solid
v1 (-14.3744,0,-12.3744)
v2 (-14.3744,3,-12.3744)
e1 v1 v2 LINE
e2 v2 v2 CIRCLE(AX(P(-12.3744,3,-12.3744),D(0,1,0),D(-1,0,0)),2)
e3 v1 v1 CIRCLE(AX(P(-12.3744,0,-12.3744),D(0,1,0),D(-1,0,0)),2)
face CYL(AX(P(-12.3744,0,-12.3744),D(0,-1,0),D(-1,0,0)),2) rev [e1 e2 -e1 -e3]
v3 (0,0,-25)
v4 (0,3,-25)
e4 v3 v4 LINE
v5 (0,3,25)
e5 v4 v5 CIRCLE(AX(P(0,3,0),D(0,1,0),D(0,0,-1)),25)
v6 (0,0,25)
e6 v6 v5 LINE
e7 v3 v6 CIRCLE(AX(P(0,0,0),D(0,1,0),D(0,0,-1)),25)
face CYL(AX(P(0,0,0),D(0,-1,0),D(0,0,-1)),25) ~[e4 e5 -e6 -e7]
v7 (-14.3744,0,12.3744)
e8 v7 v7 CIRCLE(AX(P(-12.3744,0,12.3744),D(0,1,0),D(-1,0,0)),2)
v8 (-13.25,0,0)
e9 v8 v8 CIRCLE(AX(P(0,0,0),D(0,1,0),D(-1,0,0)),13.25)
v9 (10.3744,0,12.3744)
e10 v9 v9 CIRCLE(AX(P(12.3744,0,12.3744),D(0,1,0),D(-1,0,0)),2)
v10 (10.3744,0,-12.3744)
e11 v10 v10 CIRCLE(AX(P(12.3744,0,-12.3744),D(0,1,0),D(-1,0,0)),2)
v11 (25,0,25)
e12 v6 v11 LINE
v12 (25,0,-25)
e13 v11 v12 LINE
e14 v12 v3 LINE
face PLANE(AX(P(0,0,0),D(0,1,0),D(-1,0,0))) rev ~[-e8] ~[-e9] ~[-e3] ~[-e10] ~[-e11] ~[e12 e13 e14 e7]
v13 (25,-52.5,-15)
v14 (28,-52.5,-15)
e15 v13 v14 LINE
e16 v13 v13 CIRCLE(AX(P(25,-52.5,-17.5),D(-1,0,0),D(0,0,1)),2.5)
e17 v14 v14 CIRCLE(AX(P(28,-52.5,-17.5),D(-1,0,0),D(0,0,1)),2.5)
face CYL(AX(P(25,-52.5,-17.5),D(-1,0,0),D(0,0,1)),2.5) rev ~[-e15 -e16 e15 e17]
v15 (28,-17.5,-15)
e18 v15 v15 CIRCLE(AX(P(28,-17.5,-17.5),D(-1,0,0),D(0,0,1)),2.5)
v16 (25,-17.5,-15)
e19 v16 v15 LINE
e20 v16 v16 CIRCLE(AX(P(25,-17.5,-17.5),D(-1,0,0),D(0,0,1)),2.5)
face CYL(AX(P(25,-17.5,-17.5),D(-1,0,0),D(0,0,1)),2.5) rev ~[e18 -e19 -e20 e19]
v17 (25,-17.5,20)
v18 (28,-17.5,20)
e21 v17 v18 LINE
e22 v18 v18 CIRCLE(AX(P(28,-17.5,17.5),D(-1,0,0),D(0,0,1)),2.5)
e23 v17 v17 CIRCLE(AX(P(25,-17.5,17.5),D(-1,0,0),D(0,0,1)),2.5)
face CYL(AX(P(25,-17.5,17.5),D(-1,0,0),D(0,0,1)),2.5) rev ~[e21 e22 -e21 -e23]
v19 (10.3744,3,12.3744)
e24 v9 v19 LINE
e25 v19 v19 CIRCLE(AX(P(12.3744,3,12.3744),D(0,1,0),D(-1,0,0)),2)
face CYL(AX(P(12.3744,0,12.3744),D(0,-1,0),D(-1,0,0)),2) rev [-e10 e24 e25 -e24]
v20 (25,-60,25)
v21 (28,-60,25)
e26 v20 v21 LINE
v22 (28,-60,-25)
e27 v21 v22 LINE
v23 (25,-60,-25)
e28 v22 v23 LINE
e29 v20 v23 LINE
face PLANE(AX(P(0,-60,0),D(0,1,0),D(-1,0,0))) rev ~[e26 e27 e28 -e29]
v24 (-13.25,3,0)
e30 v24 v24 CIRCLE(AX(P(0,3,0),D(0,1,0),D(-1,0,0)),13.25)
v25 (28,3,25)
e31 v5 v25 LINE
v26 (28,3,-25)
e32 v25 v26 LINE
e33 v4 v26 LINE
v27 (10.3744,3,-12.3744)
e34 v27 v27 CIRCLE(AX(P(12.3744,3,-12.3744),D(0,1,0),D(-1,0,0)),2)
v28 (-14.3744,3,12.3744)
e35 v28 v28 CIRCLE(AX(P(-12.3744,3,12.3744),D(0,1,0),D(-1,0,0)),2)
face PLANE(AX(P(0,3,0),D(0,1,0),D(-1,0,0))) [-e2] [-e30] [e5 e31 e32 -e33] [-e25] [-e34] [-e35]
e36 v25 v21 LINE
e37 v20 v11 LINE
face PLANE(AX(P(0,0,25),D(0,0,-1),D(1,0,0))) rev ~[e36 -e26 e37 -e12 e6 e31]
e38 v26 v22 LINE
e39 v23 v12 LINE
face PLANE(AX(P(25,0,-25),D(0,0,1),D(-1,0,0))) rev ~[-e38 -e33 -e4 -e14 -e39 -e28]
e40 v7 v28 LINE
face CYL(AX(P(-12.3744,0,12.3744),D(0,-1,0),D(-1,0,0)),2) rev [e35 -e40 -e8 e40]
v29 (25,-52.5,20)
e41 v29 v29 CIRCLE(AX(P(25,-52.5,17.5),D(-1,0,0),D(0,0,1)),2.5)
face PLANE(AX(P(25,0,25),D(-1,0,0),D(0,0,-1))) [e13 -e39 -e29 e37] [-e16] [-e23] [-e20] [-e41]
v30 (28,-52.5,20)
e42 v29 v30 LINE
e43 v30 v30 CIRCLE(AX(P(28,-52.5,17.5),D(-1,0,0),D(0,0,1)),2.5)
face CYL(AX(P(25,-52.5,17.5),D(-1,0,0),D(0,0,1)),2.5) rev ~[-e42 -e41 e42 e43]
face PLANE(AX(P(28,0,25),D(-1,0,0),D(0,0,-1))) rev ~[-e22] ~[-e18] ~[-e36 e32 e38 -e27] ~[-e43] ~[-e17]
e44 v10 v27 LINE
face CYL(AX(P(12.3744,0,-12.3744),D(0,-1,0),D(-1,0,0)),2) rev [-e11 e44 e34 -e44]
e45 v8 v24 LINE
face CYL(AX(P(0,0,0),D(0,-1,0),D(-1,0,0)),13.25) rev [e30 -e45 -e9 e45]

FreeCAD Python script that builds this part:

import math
import FreeCAD as App
import Part
import Sketcher
from FreeCAD import Vector


def add_polygon(sketch, points):
    """Adds a closed chain of lines whose ends are joined by coincident constraints."""
    first, n = sketch.GeometryCount, len(points)
    for a, b in zip(points, points[1:] + points[:1]):
        sketch.addGeometry(Part.LineSegment(App.Vector(*a, 0), App.Vector(*b, 0)), False)
    for i in range(n):
        sketch.addConstraint(Sketcher.Constraint("Coincident", first + i, 2, first + (i + 1) % n, 1))

doc = App.newDocument("Part")
params = doc.addObject("Spreadsheet::Sheet", "Params")
for row, (alias, value) in enumerate([
    ("sketch1_diameter", "4 mm"),
    ("sketch1_radius", "25 mm"),
    ("sketch1_diameter2", "26.5 mm"),
    ("sketch1_width", "25 mm"),
    ("pad1_length", "3 mm"),
    ("sketch2_width", "3 mm"),
    ("sketch2_height", "50 mm"),
    ("pad2_length", "3 mm"),
    ("pad2_length2", "60 mm"),
    ("sketch3_diameter", "5 mm"),
    ("pocket1_length", "5 mm"),
], start=1):
    params.set(f"A{row}", alias)
    params.set(f"B{row}", "=" + value)
    params.setAlias(f"B{row}", alias)

body = doc.addObject("PartDesign::Body", "Body")

# Sketch on XZ plane
sketch1 = body.newObject("Sketcher::SketchObject", "Sketch")
sketch1.AttachmentSupport = (doc.getObject("XZ_Plane"), [""])
sketch1.MapMode = "FlatFace"
sketch1.addGeometry([
    Part.LineSegment(Vector(25, -25, 0), Vector(0, -25, 0)),  # 0
    Part.ArcOfCircle(Part.Circle(Vector(0, 0, 0), Vector(0, 0, 1), 25), math.radians(90), math.radians(270)),  # 1
    Part.LineSegment(Vector(0, 25, 0), Vector(25, 25, 0)),  # 2
    Part.LineSegment(Vector(25, 25, 0), Vector(25, -25, 0)),  # 3
    Part.Circle(Vector(12.4, -12.4, 0), Vector(0, 0, 1), 2),  # 4
    Part.Circle(Vector(-12.4, -12.4, 0), Vector(0, 0, 1), 2),  # 5
    Part.Circle(Vector(12.4, 12.4, 0), Vector(0, 0, 1), 2),  # 6
    Part.Circle(Vector(0, 0, 0), Vector(0, 0, 1), 13.2),  # 7
    Part.Circle(Vector(-12.4, 12.4, 0), Vector(0, 0, 1), 2),  # 8
], False)
sketch1.addConstraint([
    Sketcher.Constraint("Tangent", 0, 2, 1, 2),
    Sketcher.Constraint("Tangent", 1, 1, 2, 1),
    Sketcher.Constraint("Coincident", 2, 2, 3, 1),
    Sketcher.Constraint("Coincident", 3, 2, 0, 1),
    Sketcher.Constraint("Horizontal", 0),
    Sketcher.Constraint("Horizontal", 2),
    Sketcher.Constraint("Vertical", 3),
    Sketcher.Constraint("Coincident", 1, 3, -1, 1),
    Sketcher.Constraint("Coincident", 7, 3, -1, 1),
    Sketcher.Constraint("Equal", 4, 5),
    Sketcher.Constraint("Equal", 5, 6),
    Sketcher.Constraint("Equal", 6, 8),
    Sketcher.Constraint("Symmetric", 5, 3, 6, 3, -1, 1),
    Sketcher.Constraint("Symmetric", 4, 3, 8, 3, -1, 1),
    Sketcher.Constraint("Symmetric", 4, 3, 5, 3, -2),
    Sketcher.Constraint("Diameter", 4, 4.0),
    Sketcher.Constraint("Radius", 1, 25.0),
    Sketcher.Constraint("Diameter", 7, 26.5),
    Sketcher.Constraint("DistanceX", 0, 2, 0, 1, 25.0),
    Sketcher.Constraint("DistanceX", -1, 1, 4, 3, 12.3744),
    Sketcher.Constraint("DistanceY", 4, 3, -1, 1, 12.3744),
])
sketch1.setExpression("Constraints[15]", "Params.sketch1_diameter")
sketch1.setExpression("Constraints[16]", "Params.sketch1_radius")
sketch1.setExpression("Constraints[17]", "Params.sketch1_diameter2")
sketch1.setExpression("Constraints[18]", "Params.sketch1_width")
pad1 = body.newObject("PartDesign::Pad", "Pad")
pad1.Profile = sketch1
pad1.setExpression("Length", "Params.pad1_length")
pad1.Reversed = True

# Sketch on XZ plane
sketch2 = body.newObject("Sketcher::SketchObject", "Sketch001")
sketch2.AttachmentSupport = (doc.getObject("XZ_Plane"), [""])
sketch2.MapMode = "FlatFace"
add_polygon(sketch2, [(28, -25), (25, -25), (25, 25), (28, 25)])  # lines 0-3
sketch2.addConstraint([
    Sketcher.Constraint("Horizontal", 0),
    Sketcher.Constraint("Vertical", 1),
    Sketcher.Constraint("Horizontal", 2),
    Sketcher.Constraint("Vertical", 3),
    Sketcher.Constraint("DistanceX", 0, 2, 0, 1, 3.0),
    Sketcher.Constraint("DistanceY", 1, 1, 1, 2, 50.0),
    Sketcher.Constraint("DistanceX", -1, 1, 0, 2, 25.0),
    Sketcher.Constraint("DistanceY", 0, 2, -1, 1, 25.0),
])
sketch2.setExpression("Constraints[8]", "Params.sketch2_width")
sketch2.setExpression("Constraints[9]", "Params.sketch2_height")
pad2 = body.newObject("PartDesign::Pad", "Pad001")
pad2.Profile = sketch2
pad2.Type = "TwoLengths"
pad2.setExpression("Length", "Params.pad2_length")
pad2.setExpression("Length2", "Params.pad2_length2")
pad2.Reversed = True

# Sketch on YZ plane
sketch3 = body.newObject("Sketcher::SketchObject", "Sketch002")
sketch3.AttachmentSupport = (doc.getObject("YZ_Plane"), [""])
sketch3.MapMode = "FlatFace"
sketch3.AttachmentOffset = App.Placement(Vector(0, 0, 25), App.Rotation())
sketch3.addGeometry([
    Part.Circle(Vector(-17.5, -17.5, 0), Vector(0, 0, 1), 2.5),
    Part.Circle(Vector(-17.5, 17.5, 0), Vector(0, 0, 1), 2.5),
    Part.Circle(Vector(-52.5, 17.5, 0), Vector(0, 0, 1), 2.5),
    Part.Circle(Vector(-52.5, -17.5, 0), Vector(0, 0, 1), 2.5),
], False)
sketch3.addConstraint([
    Sketcher.Constraint("Equal", 0, 1),
    Sketcher.Constraint("Equal", 1, 2),
    Sketcher.Constraint("Equal", 2, 3),
    Sketcher.Constraint("Symmetric", 0, 3, 1, 3, -1),
    Sketcher.Constraint("Symmetric", 2, 3, 3, 3, -1),
    Sketcher.Constraint("Horizontal", 1, 3, 2, 3),
    Sketcher.Constraint("Diameter", 0, 5.0),
    Sketcher.Constraint("DistanceY", 0, 3, 1, 3, 35.0),
    Sketcher.Constraint("DistanceX", 2, 3, 1, 3, 35.0),
    Sketcher.Constraint("DistanceX", 0, 3, -1, 1, 17.5),
])
sketch3.setExpression("Constraints[6]", "Params.sketch3_diameter")
pocket1 = body.newObject("PartDesign::Pocket", "Pocket")
pocket1.Profile = sketch3
pocket1.setExpression("Length", "Params.pocket1_length")
pocket1.Reversed = True

doc.recompute()
